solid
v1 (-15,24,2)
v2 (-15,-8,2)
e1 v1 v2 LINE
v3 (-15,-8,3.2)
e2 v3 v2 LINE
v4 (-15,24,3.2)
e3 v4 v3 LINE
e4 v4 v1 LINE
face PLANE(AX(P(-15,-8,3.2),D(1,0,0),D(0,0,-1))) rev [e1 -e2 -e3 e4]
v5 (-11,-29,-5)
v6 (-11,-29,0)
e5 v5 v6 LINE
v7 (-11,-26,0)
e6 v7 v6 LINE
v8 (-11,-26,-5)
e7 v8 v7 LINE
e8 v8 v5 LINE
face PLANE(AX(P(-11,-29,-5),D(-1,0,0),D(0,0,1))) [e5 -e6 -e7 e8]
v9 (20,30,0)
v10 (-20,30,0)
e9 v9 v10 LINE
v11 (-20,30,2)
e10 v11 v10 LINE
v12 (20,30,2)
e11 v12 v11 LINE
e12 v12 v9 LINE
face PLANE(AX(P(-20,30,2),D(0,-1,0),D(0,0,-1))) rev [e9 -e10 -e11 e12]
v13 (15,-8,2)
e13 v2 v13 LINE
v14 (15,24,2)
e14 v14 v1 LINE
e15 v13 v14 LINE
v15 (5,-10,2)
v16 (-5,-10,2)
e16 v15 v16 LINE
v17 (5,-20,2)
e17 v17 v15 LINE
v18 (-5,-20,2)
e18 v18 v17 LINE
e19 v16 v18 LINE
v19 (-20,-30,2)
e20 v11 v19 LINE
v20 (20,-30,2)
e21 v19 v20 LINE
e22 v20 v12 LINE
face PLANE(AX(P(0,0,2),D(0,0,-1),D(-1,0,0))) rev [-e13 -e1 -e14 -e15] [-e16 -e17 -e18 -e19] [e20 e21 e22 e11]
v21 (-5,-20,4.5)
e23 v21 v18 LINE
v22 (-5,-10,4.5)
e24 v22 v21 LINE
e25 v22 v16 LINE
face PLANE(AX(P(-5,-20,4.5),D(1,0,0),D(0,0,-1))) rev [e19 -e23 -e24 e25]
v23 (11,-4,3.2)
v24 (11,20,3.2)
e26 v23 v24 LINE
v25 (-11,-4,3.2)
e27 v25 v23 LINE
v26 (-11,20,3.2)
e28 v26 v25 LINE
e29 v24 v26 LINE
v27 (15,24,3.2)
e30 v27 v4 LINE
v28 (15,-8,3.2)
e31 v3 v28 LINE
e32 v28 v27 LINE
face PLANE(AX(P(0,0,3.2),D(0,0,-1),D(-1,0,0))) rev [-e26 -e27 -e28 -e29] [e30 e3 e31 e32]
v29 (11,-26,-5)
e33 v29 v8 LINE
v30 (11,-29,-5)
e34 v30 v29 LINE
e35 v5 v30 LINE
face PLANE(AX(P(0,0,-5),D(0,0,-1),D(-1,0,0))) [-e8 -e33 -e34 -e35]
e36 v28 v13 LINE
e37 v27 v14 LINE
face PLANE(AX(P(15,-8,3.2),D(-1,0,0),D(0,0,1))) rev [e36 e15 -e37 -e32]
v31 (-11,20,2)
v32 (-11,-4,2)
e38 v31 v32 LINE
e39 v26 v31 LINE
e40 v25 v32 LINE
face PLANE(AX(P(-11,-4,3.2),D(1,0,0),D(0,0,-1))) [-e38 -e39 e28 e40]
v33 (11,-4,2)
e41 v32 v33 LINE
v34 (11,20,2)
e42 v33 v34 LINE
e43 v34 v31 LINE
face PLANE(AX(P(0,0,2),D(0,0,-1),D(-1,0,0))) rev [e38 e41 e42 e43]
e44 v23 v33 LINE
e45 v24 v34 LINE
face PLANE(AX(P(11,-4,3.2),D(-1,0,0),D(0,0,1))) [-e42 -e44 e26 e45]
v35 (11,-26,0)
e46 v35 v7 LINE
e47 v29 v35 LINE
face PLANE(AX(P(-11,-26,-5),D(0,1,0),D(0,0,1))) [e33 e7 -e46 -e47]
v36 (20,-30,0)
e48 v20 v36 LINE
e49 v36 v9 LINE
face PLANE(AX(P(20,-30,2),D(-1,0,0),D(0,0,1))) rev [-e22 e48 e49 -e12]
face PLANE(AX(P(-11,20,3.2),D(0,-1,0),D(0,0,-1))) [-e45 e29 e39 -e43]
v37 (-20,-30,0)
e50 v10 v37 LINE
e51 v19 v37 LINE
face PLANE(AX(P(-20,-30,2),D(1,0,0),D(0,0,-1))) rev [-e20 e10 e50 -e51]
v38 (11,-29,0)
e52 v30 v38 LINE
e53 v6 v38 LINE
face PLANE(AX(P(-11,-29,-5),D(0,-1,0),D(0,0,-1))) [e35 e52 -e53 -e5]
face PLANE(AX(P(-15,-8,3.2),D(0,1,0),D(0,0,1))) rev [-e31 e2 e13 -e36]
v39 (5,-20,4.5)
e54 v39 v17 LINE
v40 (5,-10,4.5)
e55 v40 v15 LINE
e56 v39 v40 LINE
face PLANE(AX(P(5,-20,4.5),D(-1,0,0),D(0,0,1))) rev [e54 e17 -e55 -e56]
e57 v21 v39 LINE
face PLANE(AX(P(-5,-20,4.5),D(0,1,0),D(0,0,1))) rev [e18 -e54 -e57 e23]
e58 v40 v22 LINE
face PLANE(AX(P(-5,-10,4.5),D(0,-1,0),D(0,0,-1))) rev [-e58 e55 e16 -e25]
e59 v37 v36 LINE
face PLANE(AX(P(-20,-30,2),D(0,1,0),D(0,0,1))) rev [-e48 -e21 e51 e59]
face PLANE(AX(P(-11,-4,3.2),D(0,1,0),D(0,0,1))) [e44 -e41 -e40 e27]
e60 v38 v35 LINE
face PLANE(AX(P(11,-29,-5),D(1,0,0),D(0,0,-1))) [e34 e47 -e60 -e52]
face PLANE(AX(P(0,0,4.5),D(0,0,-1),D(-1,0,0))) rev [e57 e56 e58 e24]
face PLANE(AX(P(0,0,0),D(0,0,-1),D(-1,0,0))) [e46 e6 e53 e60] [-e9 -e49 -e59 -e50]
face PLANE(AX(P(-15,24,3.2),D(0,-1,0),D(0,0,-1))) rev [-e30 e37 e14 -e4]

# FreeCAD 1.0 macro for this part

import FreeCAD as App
import Part
import Sketcher
from FreeCAD import Vector


def add_polygon(sketch, points):
    """Adds a closed chain of lines whose ends are joined by coincident constraints."""
    first, n = sketch.GeometryCount, len(points)
    for a, b in zip(points, points[1:] + points[:1]):
        sketch.addGeometry(Part.LineSegment(App.Vector(*a, 0), App.Vector(*b, 0)), False)
    for i in range(n):
        sketch.addConstraint(Sketcher.Constraint("Coincident", first + i, 2, first + (i + 1) % n, 1))

doc = App.newDocument("Part")
params = doc.addObject("Spreadsheet::Sheet", "Params")
for row, (alias, value) in enumerate([
    ("sketch1_width", "40 mm"),
    ("sketch1_height", "60 mm"),
    ("pad1_length", "2 mm"),
    ("sketch2_width", "30 mm"),
    ("sketch2_width2", "22 mm"),
    ("sketch2_height", "32 mm"),
    ("sketch2_height2", "24 mm"),
    ("pad2_length", "1.2 mm"),
    ("sketch3_width", "10 mm"),
    ("pad3_length", "2.5 mm"),
    ("sketch4_width", "22 mm"),
    ("sketch4_height", "3 mm"),
    ("pad4_length", "5 mm"),
], start=1):
    params.set(f"A{row}", alias)
    params.set(f"B{row}", "=" + value)
    params.setAlias(f"B{row}", alias)

body = doc.addObject("PartDesign::Body", "Body")

# Sketch on XY plane
sketch1 = body.newObject("Sketcher::SketchObject", "Sketch")
sketch1.AttachmentSupport = (doc.getObject("XY_Plane"), [""])
sketch1.MapMode = "FlatFace"
add_polygon(sketch1, [(-20, 30), (-20, -30), (20, -30), (20, 30)])  # lines 0-3
sketch1.addConstraint(Sketcher.Constraint("Vertical", 0))
sketch1.addConstraint(Sketcher.Constraint("Horizontal", 1))
sketch1.addConstraint(Sketcher.Constraint("Vertical", 2))
sketch1.addConstraint(Sketcher.Constraint("Horizontal", 3))
sketch1.addConstraint(Sketcher.Constraint("Symmetric", 0, 2, 2, 2, -1, 1))
sketch1.addConstraint(Sketcher.Constraint("DistanceX", 1, 1, 1, 2, 40.0))
sketch1.addConstraint(Sketcher.Constraint("DistanceY", 0, 2, 0, 1, 60.0))
sketch1.setExpression("Constraints[9]", "Params.sketch1_width")
sketch1.setExpression("Constraints[10]", "Params.sketch1_height")
pad1 = body.newObject("PartDesign::Pad", "Pad")
pad1.Profile = sketch1
pad1.setExpression("Length", "Params.pad1_length")

# Sketch on XY plane
sketch2 = body.newObject("Sketcher::SketchObject", "Sketch001")
sketch2.AttachmentSupport = (doc.getObject("XY_Plane"), [""])
sketch2.MapMode = "FlatFace"
sketch2.AttachmentOffset = App.Placement(Vector(0, 0, 2), App.Rotation())
add_polygon(sketch2, [(-15, 24), (-15, -8), (15, -8), (15, 24)])  # lines 0-3
add_polygon(sketch2, [(11, -4), (-11, -4), (-11, 20), (11, 20)])  # lines 4-7
sketch2.addConstraint(Sketcher.Constraint("Vertical", 0))
sketch2.addConstraint(Sketcher.Constraint("Horizontal", 1))
sketch2.addConstraint(Sketcher.Constraint("Vertical", 2))
sketch2.addConstraint(Sketcher.Constraint("Horizontal", 3))
sketch2.addConstraint(Sketcher.Constraint("Horizontal", 4))
sketch2.addConstraint(Sketcher.Constraint("Vertical", 5))
sketch2.addConstraint(Sketcher.Constraint("Horizontal", 6))
sketch2.addConstraint(Sketcher.Constraint("Vertical", 7))
sketch2.addConstraint(Sketcher.Constraint("DistanceX", 1, 1, 1, 2, 30.0))
sketch2.addConstraint(Sketcher.Constraint("DistanceX", 4, 2, 4, 1, 22.0))
sketch2.addConstraint(Sketcher.Constraint("DistanceY", 0, 2, 0, 1, 32.0))
sketch2.addConstraint(Sketcher.Constraint("DistanceY", 5, 1, 5, 2, 24.0))
sketch2.addConstraint(Sketcher.Constraint("DistanceX", 0, 2, -1, 1, 15.0))
sketch2.addConstraint(Sketcher.Constraint("DistanceY", 0, 2, -1, 1, 8.0))
sketch2.addConstraint(Sketcher.Constraint("DistanceX", 4, 2, -1, 1, 11.0))
sketch2.addConstraint(Sketcher.Constraint("DistanceY", 4, 2, -1, 1, 4.0))
sketch2.setExpression("Constraints[16]", "Params.sketch2_width")
sketch2.setExpression("Constraints[17]", "Params.sketch2_width2")
sketch2.setExpression("Constraints[18]", "Params.sketch2_height")
sketch2.setExpression("Constraints[19]", "Params.sketch2_height2")
pad2 = body.newObject("PartDesign::Pad", "Pad001")
pad2.Profile = sketch2
pad2.setExpression("Length", "Params.pad2_length")

# Sketch on XY plane
sketch3 = body.newObject("Sketcher::SketchObject", "Sketch002")
sketch3.AttachmentSupport = (doc.getObject("XY_Plane"), [""])
sketch3.MapMode = "FlatFace"
sketch3.AttachmentOffset = App.Placement(Vector(0, 0, 2), App.Rotation())
add_polygon(sketch3, [(-5, -10), (-5, -20), (5, -20), (5, -10)])  # lines 0-3
sketch3.addConstraint(Sketcher.Constraint("Vertical", 0))
sketch3.addConstraint(Sketcher.Constraint("Horizontal", 1))
sketch3.addConstraint(Sketcher.Constraint("Vertical", 2))
sketch3.addConstraint(Sketcher.Constraint("Horizontal", 3))
sketch3.addConstraint(Sketcher.Constraint("Equal", 3, 0))
sketch3.addConstraint(Sketcher.Constraint("DistanceX", 1, 1, 1, 2, 10.0))
sketch3.addConstraint(Sketcher.Constraint("DistanceX", 0, 2, -1, 1, 5.0))
sketch3.addConstraint(Sketcher.Constraint("DistanceY", 0, 2, -1, 1, 20.0))
sketch3.setExpression("Constraints[9]", "Params.sketch3_width")
pad3 = body.newObject("PartDesign::Pad", "Pad002")
pad3.Profile = sketch3
pad3.setExpression("Length", "Params.pad3_length")

# Sketch on XY plane
sketch4 = body.newObject("Sketcher::SketchObject", "Sketch003")
sketch4.AttachmentSupport = (doc.getObject("XY_Plane"), [""])
sketch4.MapMode = "FlatFace"
add_polygon(sketch4, [(-11, -26), (-11, -29), (11, -29), (11, -26)])  # lines 0-3
sketch4.addConstraint(Sketcher.Constraint("Vertical", 0))
sketch4.addConstraint(Sketcher.Constraint("Horizontal", 1))
sketch4.addConstraint(Sketcher.Constraint("Vertical", 2))
sketch4.addConstraint(Sketcher.Constraint("Horizontal", 3))
sketch4.addConstraint(Sketcher.Constraint("DistanceX", 1, 1, 1, 2, 22.0))
sketch4.addConstraint(Sketcher.Constraint("DistanceY", 0, 2, 0, 1, 3.0))
sketch4.addConstraint(Sketcher.Constraint("DistanceX", 0, 2, -1, 1, 11.0))
sketch4.addConstraint(Sketcher.Constraint("DistanceY", 0, 2, -1, 1, 29.0))
sketch4.setExpression("Constraints[8]", "Params.sketch4_width")
sketch4.setExpression("Constraints[9]", "Params.sketch4_height")
pad4 = body.newObject("PartDesign::Pad", "Pad003")
pad4.Profile = sketch4
pad4.setExpression("Length", "Params.pad4_length")
pad4.Reversed = True

doc.recompute()
